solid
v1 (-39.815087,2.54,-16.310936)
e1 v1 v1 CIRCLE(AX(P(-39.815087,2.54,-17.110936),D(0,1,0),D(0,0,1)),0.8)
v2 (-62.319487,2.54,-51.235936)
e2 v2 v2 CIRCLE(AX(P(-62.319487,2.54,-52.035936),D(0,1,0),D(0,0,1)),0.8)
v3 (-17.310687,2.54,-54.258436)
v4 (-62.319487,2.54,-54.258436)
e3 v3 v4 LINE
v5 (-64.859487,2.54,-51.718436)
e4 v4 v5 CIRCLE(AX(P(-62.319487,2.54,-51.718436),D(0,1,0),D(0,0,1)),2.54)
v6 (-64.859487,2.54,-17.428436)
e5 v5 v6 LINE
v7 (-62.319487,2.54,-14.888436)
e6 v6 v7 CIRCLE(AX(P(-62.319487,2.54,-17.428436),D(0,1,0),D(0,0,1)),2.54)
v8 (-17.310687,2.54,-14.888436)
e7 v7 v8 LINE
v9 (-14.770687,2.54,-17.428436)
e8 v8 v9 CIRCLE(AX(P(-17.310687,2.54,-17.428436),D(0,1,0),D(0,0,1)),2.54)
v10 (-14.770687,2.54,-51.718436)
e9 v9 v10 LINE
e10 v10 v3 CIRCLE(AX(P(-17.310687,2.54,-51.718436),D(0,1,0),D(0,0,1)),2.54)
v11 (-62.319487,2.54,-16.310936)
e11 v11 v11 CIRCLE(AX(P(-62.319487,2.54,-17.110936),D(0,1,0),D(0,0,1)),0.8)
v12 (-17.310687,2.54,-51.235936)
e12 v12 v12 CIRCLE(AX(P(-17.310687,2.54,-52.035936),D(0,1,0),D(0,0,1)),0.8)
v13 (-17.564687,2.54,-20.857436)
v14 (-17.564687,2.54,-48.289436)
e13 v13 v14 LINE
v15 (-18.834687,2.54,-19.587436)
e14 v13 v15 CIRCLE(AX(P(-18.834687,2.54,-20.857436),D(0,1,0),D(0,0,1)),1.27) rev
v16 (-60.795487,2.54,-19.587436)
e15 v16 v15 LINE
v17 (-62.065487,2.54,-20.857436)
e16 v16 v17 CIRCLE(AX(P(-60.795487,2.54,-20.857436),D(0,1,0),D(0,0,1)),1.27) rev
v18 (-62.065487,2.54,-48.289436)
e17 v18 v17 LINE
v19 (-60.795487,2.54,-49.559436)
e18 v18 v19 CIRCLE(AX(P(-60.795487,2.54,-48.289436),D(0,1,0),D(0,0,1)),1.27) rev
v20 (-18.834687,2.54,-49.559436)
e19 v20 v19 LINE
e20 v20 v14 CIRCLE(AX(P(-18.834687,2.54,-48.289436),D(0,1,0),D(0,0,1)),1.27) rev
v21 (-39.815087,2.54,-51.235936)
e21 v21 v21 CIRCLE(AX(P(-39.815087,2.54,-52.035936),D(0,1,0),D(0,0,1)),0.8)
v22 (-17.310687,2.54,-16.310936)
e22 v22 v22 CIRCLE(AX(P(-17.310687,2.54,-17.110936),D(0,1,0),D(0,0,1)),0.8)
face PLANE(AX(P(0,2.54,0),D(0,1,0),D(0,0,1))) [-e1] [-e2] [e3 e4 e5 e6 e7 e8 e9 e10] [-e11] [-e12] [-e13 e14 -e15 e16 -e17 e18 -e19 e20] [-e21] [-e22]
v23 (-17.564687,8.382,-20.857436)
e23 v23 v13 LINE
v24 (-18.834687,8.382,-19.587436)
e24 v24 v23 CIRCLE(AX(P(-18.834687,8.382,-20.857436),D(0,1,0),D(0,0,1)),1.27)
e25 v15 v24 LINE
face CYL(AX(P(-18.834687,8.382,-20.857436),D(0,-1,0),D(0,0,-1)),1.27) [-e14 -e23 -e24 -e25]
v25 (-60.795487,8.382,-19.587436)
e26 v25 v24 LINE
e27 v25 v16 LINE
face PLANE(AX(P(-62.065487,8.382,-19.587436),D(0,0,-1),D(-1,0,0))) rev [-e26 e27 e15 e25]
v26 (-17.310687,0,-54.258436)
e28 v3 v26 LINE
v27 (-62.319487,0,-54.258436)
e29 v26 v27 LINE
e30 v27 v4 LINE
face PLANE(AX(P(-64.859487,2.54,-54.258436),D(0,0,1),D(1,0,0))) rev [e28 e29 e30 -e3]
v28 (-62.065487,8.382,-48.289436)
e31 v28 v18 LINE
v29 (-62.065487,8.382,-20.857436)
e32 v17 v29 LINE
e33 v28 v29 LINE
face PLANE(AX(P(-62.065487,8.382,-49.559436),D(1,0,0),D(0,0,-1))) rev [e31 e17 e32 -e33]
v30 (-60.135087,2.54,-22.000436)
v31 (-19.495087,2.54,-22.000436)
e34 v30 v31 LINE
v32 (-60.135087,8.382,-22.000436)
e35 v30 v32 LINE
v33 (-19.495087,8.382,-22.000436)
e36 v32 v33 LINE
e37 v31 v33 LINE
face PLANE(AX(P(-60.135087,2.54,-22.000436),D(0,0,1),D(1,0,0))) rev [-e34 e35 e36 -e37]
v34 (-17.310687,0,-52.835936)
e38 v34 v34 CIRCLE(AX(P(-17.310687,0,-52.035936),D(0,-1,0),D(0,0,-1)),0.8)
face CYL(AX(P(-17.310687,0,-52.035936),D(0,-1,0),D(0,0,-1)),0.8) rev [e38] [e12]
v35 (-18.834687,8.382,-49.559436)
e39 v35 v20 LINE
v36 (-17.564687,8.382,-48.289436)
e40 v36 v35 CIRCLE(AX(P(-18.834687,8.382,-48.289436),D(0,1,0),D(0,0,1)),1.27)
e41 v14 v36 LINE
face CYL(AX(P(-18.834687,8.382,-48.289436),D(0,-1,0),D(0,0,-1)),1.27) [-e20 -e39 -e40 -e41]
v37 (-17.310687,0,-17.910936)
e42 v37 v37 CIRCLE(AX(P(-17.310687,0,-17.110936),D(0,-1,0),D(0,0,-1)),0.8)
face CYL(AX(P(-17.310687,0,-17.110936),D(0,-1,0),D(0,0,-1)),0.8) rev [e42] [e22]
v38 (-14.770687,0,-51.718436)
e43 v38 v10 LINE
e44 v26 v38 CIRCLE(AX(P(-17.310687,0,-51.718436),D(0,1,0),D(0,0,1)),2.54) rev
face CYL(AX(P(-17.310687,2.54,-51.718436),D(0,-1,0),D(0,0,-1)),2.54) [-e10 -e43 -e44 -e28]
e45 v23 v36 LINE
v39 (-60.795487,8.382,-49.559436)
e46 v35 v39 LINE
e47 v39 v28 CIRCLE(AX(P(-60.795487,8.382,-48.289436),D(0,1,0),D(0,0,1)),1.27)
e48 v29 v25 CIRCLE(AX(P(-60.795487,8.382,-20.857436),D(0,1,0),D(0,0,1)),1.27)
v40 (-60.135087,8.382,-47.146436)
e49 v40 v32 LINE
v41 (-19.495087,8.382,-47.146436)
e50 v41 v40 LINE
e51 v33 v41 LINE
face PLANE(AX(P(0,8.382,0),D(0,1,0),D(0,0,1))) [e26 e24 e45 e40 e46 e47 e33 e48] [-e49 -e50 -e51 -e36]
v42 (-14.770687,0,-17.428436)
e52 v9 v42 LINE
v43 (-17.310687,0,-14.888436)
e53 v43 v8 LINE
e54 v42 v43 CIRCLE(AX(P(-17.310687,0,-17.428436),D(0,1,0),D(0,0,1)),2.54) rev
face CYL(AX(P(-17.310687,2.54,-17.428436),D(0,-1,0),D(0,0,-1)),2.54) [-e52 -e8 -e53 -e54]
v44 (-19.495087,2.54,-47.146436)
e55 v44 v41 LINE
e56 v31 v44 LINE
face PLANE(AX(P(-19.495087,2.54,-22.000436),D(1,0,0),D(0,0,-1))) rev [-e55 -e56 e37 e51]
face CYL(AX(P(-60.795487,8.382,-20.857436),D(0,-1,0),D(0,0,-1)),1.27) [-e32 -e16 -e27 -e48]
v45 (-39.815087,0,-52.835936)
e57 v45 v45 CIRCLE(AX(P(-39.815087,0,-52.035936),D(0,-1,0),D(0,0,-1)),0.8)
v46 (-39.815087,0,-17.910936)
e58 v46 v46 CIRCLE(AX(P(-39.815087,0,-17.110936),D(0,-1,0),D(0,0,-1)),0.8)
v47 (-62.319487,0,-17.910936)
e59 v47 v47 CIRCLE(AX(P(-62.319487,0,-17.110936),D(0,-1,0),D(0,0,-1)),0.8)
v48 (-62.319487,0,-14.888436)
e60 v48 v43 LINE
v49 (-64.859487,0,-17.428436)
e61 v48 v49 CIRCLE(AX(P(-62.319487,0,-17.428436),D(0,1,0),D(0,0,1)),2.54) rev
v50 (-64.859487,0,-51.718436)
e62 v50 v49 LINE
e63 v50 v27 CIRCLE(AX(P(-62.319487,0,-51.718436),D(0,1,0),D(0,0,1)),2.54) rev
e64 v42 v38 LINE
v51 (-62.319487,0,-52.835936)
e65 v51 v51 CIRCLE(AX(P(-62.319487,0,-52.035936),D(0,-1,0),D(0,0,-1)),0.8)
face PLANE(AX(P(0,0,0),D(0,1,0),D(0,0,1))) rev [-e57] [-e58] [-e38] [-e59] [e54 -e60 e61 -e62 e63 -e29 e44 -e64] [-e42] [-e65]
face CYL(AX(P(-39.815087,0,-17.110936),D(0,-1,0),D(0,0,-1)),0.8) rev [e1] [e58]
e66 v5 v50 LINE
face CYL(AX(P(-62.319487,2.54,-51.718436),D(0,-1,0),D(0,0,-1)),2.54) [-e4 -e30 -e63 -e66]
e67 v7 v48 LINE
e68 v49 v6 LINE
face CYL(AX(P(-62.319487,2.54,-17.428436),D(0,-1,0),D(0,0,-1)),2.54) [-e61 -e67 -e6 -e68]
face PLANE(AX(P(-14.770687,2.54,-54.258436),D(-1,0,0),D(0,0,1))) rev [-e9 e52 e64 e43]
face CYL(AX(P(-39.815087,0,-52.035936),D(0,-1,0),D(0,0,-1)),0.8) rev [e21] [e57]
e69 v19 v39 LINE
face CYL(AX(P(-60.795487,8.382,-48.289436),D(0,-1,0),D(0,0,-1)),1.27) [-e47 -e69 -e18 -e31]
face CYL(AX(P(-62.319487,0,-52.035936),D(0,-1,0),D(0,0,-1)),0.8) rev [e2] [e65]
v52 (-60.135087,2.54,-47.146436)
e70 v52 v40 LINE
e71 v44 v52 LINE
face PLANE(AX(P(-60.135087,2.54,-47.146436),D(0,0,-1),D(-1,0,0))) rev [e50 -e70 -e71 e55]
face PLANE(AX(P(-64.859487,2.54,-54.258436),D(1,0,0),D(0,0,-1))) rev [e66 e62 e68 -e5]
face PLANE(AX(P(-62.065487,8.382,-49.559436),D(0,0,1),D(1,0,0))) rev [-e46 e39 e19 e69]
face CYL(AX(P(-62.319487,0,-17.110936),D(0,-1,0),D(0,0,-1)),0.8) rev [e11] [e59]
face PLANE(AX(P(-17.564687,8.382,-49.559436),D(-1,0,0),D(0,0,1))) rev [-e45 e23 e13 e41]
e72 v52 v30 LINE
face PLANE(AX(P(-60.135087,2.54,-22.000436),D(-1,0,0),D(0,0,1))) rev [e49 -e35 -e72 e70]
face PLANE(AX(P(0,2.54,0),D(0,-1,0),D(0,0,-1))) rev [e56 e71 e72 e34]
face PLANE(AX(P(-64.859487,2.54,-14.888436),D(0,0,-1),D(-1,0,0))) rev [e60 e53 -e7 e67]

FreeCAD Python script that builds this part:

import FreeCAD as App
import Part
import Sketcher
from FreeCAD import Vector
Q = App.Units.Quantity


def edges_at(feature, points):
    """Names of the edges that pass closest to the given points."""
    edges = feature.Shape.Edges
    near = lambda p: min(range(len(edges)), key=lambda i: edges[i].distToShape(Part.Vertex(*p))[0])
    return sorted({f"Edge{near(p) + 1}" for p in points})

doc = App.newDocument("Part")
body = doc.addObject("PartDesign::Body", "Body")

sketch1 = doc.addObject("Sketcher::SketchObject", "Sketch")
body.addObject(sketch1)
sketch1.AttachmentSupport = (doc.XZ_Plane, [""])
sketch1.MapMode = "FlatFace"
sketch1.addGeometry(Part.LineSegment(Vector(-64.859487, -54.258436, 0), Vector(-64.859487, -14.888436, 0)), False)
sketch1.addGeometry(Part.LineSegment(Vector(-64.859487, -14.888436, 0), Vector(-14.770687, -14.888436, 0)), False)
sketch1.addGeometry(Part.LineSegment(Vector(-14.770687, -14.888436, 0), Vector(-14.770687, -54.258436, 0)), False)
sketch1.addGeometry(Part.LineSegment(Vector(-14.770687, -54.258436, 0), Vector(-64.859487, -54.258436, 0)), False)
sketch1.addConstraint(Sketcher.Constraint("Coincident", 0, 2, 1, 1))
sketch1.addConstraint(Sketcher.Constraint("Coincident", 1, 2, 2, 1))
sketch1.addConstraint(Sketcher.Constraint("Coincident", 2, 2, 3, 1))
sketch1.addConstraint(Sketcher.Constraint("Coincident", 3, 2, 0, 1))
sketch1.addConstraint(Sketcher.Constraint("Vertical", 0))
sketch1.addConstraint(Sketcher.Constraint("Horizontal", 1))
sketch1.addConstraint(Sketcher.Constraint("Vertical", 2))
sketch1.addConstraint(Sketcher.Constraint("Horizontal", 3))
sketch1.addConstraint(Sketcher.Constraint("DistanceY", 0, 1, 0, 2, Q("1.55 in")))
sketch1.addConstraint(Sketcher.Constraint("DistanceX", 1, 1, 1, 2, Q("1.972 in")))
sketch1.addConstraint(Sketcher.Constraint("DistanceX", 0, 2, -1, 1, 64.859487))
sketch1.addConstraint(Sketcher.Constraint("DistanceY", 0, 2, -1, 1, 14.888436))
pad1 = doc.addObject("PartDesign::Pad", "Pad")
body.addObject(pad1)
pad1.Profile = sketch1
pad1.Length = Q("0.1 in")
pad1.Reversed = True

sketch2 = doc.addObject("Sketcher::SketchObject", "Sketch001")
body.addObject(sketch2)
sketch2.AttachmentSupport = (doc.XZ_Plane, [""])
sketch2.MapMode = "FlatFace"
sketch2.AttachmentOffset = App.Placement(Vector(0, 0, -0.1 * 25.4), App.Rotation())
sketch2.addGeometry(Part.LineSegment(Vector(-62.065487, -49.559436, 0), Vector(-62.065487, -19.587436, 0)), False)
sketch2.addGeometry(Part.LineSegment(Vector(-62.065487, -19.587436, 0), Vector(-17.564687, -19.587436, 0)), False)
sketch2.addGeometry(Part.LineSegment(Vector(-17.564687, -19.587436, 0), Vector(-17.564687, -49.559436, 0)), False)
sketch2.addGeometry(Part.LineSegment(Vector(-17.564687, -49.559436, 0), Vector(-62.065487, -49.559436, 0)), False)
sketch2.addConstraint(Sketcher.Constraint("Coincident", 0, 2, 1, 1))
sketch2.addConstraint(Sketcher.Constraint("Coincident", 1, 2, 2, 1))
sketch2.addConstraint(Sketcher.Constraint("Coincident", 2, 2, 3, 1))
sketch2.addConstraint(Sketcher.Constraint("Coincident", 3, 2, 0, 1))
sketch2.addConstraint(Sketcher.Constraint("Vertical", 0))
sketch2.addConstraint(Sketcher.Constraint("Horizontal", 1))
sketch2.addConstraint(Sketcher.Constraint("Vertical", 2))
sketch2.addConstraint(Sketcher.Constraint("Horizontal", 3))
sketch2.addConstraint(Sketcher.Constraint("DistanceY", 0, 1, 0, 2, Q("1.18 in")))
sketch2.addConstraint(Sketcher.Constraint("DistanceX", 1, 1, 1, 2, Q("1.752 in")))
sketch2.addConstraint(Sketcher.Constraint("DistanceX", 0, 2, -1, 1, 62.065487))
sketch2.addConstraint(Sketcher.Constraint("DistanceY", 0, 2, -1, 1, 19.587436))
pad2 = doc.addObject("PartDesign::Pad", "Pad001")
body.addObject(pad2)
pad2.Profile = sketch2
pad2.Length = Q("0.23 in")
pad2.Reversed = True
doc.recompute()

fillet = doc.addObject("PartDesign::Fillet", "Fillet")
body.addObject(fillet)
fillet.Base = (pad2, edges_at(pad2, [
    (-64.859, 1.27, -54.258),
    (-14.771, 1.27, -54.258),
    (-14.771, 1.27, -14.888),
    (-64.859, 1.27, -14.888),
]))
fillet.Radius = Q("0.1 in")
doc.recompute()

fillet2 = doc.addObject("PartDesign::Fillet", "Fillet001")
body.addObject(fillet2)
fillet2.Base = (fillet, edges_at(fillet, [
    (-62.065, 5.461, -49.559),
    (-62.065, 5.461, -19.587),
    (-17.565, 5.461, -19.587),
    (-17.565, 5.461, -49.559),
]))
fillet2.Radius = Q("0.05 in")

sketch3 = doc.addObject("Sketcher::SketchObject", "Sketch002")
body.addObject(sketch3)
sketch3.AttachmentSupport = (doc.XZ_Plane, [""])
sketch3.MapMode = "FlatFace"
sketch3.addGeometry(Part.Circle(Vector(-62.319487, -17.110936, 0), Vector(0, 0, 1), 0.8), False)
sketch3.addGeometry(Part.Circle(Vector(-39.815087, -17.110936, 0), Vector(0, 0, 1), 0.8), False)
sketch3.addGeometry(Part.Circle(Vector(-17.310687, -17.110936, 0), Vector(0, 0, 1), 0.8), False)
sketch3.addGeometry(Part.Circle(Vector(-17.310687, -52.035936, 0), Vector(0, 0, 1), 0.8), False)
sketch3.addGeometry(Part.Circle(Vector(-39.815087, -52.035936, 0), Vector(0, 0, 1), 0.8), False)
sketch3.addGeometry(Part.Circle(Vector(-62.319487, -52.035936, 0), Vector(0, 0, 1), 0.8), False)
sketch3.addConstraint(Sketcher.Constraint("Equal", 0, 1))
sketch3.addConstraint(Sketcher.Constraint("Equal", 1, 2))
sketch3.addConstraint(Sketcher.Constraint("Equal", 2, 3))
sketch3.addConstraint(Sketcher.Constraint("Equal", 3, 4))
sketch3.addConstraint(Sketcher.Constraint("Equal", 4, 5))
sketch3.addConstraint(Sketcher.Constraint("Horizontal", 0, 3, 1, 3))
sketch3.addConstraint(Sketcher.Constraint("Horizontal", 1, 3, 2, 3))
sketch3.addConstraint(Sketcher.Constraint("Horizontal", 3, 3, 4, 3))
sketch3.addConstraint(Sketcher.Constraint("Horizontal", 4, 3, 5, 3))
sketch3.addConstraint(Sketcher.Constraint("Vertical", 2, 3, 3, 3))
sketch3.addConstraint(Sketcher.Constraint("Vertical", 1, 3, 4, 3))
sketch3.addConstraint(Sketcher.Constraint("Vertical", 0, 3, 5, 3))
sketch3.addConstraint(Sketcher.Constraint("Diameter", 0, 1.6))
sketch3.addConstraint(Sketcher.Constraint("DistanceX", 0, 3, 1, 3, Q("0.886 in")))
sketch3.addConstraint(Sketcher.Constraint("DistanceX", 1, 3, 2, 3, Q("0.886 in")))
sketch3.addConstraint(Sketcher.Constraint("DistanceY", 3, 3, 2, 3, Q("1.375 in")))
sketch3.addConstraint(Sketcher.Constraint("DistanceX", 0, 3, -1, 1, 62.319487))
sketch3.addConstraint(Sketcher.Constraint("DistanceY", 0, 3, -1, 1, 17.110936))
doc.recompute()
hole = doc.addObject("PartDesign::Hole", "Hole")
body.addObject(hole)
hole.Profile = sketch3
hole.ThreadType = "None"
hole.Diameter = 1.6
hole.DepthType = "ThroughAll"

sketch4 = doc.addObject("Sketcher::SketchObject", "Sketch003")
body.addObject(sketch4)
sketch4.AttachmentSupport = (doc.XZ_Plane, [""])
sketch4.MapMode = "FlatFace"
sketch4.AttachmentOffset = App.Placement(Vector(0, 0, -0.33 * 25.4), App.Rotation())
sketch4.addGeometry(Part.LineSegment(Vector(-60.135087, -47.146436, 0), Vector(-60.135087, -22.000436, 0)), False)
sketch4.addGeometry(Part.LineSegment(Vector(-60.135087, -22.000436, 0), Vector(-19.495087, -22.000436, 0)), False)
sketch4.addGeometry(Part.LineSegment(Vector(-19.495087, -22.000436, 0), Vector(-19.495087, -47.146436, 0)), False)
sketch4.addGeometry(Part.LineSegment(Vector(-19.495087, -47.146436, 0), Vector(-60.135087, -47.146436, 0)), False)
sketch4.addConstraint(Sketcher.Constraint("Coincident", 0, 2, 1, 1))
sketch4.addConstraint(Sketcher.Constraint("Coincident", 1, 2, 2, 1))
sketch4.addConstraint(Sketcher.Constraint("Coincident", 2, 2, 3, 1))
sketch4.addConstraint(Sketcher.Constraint("Coincident", 3, 2, 0, 1))
sketch4.addConstraint(Sketcher.Constraint("Vertical", 0))
sketch4.addConstraint(Sketcher.Constraint("Horizontal", 1))
sketch4.addConstraint(Sketcher.Constraint("Vertical", 2))
sketch4.addConstraint(Sketcher.Constraint("Horizontal", 3))
sketch4.addConstraint(Sketcher.Constraint("DistanceX", 1, 1, 1, 2, Q("1.6 in")))
sketch4.addConstraint(Sketcher.Constraint("DistanceY", 0, 1, 0, 2, Q("0.99 in")))
sketch4.addConstraint(Sketcher.Constraint("DistanceX", 0, 2, -1, 1, 60.135087))
sketch4.addConstraint(Sketcher.Constraint("DistanceY", 0, 2, -1, 1, 22.000436))
pocket1 = doc.addObject("PartDesign::Pocket", "Pocket")
body.addObject(pocket1)
pocket1.Profile = sketch4
pocket1.Length = Q("0.23 in")
pocket1.Reversed = True

doc.recompute()
